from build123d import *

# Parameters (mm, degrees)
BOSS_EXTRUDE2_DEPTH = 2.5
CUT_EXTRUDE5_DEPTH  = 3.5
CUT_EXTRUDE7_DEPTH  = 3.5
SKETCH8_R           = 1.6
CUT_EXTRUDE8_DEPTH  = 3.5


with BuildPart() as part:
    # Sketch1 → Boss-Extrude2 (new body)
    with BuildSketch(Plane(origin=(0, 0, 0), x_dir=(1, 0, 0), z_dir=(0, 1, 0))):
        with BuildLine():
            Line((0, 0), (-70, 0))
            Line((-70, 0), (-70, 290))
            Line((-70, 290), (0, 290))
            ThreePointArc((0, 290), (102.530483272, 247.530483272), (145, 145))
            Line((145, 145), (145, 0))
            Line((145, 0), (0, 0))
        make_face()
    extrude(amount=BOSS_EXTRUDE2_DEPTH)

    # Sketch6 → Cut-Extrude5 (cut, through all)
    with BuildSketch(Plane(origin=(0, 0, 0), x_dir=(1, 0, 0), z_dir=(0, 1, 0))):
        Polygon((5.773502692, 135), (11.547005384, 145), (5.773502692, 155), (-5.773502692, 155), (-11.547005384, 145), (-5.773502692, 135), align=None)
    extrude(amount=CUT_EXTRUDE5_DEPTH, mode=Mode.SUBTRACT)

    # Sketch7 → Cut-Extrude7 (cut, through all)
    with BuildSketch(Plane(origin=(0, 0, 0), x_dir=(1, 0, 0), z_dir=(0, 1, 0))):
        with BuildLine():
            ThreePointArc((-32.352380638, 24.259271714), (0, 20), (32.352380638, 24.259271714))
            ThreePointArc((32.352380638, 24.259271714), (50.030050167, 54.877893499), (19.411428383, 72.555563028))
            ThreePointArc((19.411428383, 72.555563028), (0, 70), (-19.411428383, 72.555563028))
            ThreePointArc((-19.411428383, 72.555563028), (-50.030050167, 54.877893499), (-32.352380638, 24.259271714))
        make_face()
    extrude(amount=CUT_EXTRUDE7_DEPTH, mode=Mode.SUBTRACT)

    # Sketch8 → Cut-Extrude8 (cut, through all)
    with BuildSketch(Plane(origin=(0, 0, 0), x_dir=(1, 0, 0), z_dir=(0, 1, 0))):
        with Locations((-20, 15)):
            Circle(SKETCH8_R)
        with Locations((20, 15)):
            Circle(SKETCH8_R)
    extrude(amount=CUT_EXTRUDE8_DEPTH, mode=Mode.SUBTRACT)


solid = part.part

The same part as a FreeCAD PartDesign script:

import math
import FreeCAD as App
import Part
import Sketcher
Q = App.Units.Quantity

doc = App.newDocument("Part")
params = doc.addObject("Spreadsheet::Sheet", "Params")
for row, (alias, value) in enumerate([
    ("sketch1_radius", "145 mm"),
    ("sketch1_width", "215 mm"),
    ("sketch1_height", "290 mm"),
    ("pad1_length", "2.5 mm"),
    ("sketch3_radius", "125 mm"),
    ("sketch3_radius2", "25 mm"),
    ("sketch4_diameter", "3.2 mm"),
], start=1):
    params.set(f"A{row}", alias)
    params.set(f"B{row}", "=" + value)
    params.setAlias(f"B{row}", alias)

body = doc.addObject("PartDesign::Body", "Body")

# Sketch on XZ plane
sketch1 = body.newObject("Sketcher::SketchObject", "Sketch")
sketch1.AttachmentSupport = (doc.getObject("XZ_Plane"), [""])
sketch1.MapMode = "FlatFace"
sketch1.addGeometry([
    Part.LineSegment(App.Vector(-70, -290, 0), App.Vector(-70, 0, 0)),  # 0
    Part.LineSegment(App.Vector(-70, 0, 0), App.Vector(145, 0, 0)),  # 1
    Part.LineSegment(App.Vector(145, 0, 0), App.Vector(145, -145, 0)),  # 2
    Part.ArcOfCircle(Part.Circle(App.Vector(0, -145, 0), App.Vector(0, 0, 1), 145), math.radians(-90), math.radians(0)),  # 3
    Part.LineSegment(App.Vector(0, -290, 0), App.Vector(-70, -290, 0)),  # 4
], False)
sketch1.addConstraint([
    Sketcher.Constraint("Coincident", 0, 2, 1, 1),
    Sketcher.Constraint("Coincident", 1, 2, 2, 1),
    Sketcher.Constraint("Tangent", 2, 2, 3, 2),
    Sketcher.Constraint("Tangent", 3, 1, 4, 1),
    Sketcher.Constraint("Coincident", 4, 2, 0, 1),
    Sketcher.Constraint("Vertical", 0),
    Sketcher.Constraint("Horizontal", 1),
    Sketcher.Constraint("Vertical", 2),
    Sketcher.Constraint("Horizontal", 4),
    Sketcher.Constraint("PointOnObject", 3, 3, -2),
    Sketcher.Constraint("PointOnObject", 0, 2, -1),
    Sketcher.Constraint("Radius", 3, Q("145 mm")),
    Sketcher.Constraint("DistanceX", 1, 1, 1, 2, Q("215 mm")),
    Sketcher.Constraint("DistanceY", 0, 1, 0, 2, Q("290 mm")),
])
sketch1.setExpression("Constraints[11]", "Params.sketch1_radius")
sketch1.setExpression("Constraints[12]", "Params.sketch1_width")
sketch1.setExpression("Constraints[13]", "Params.sketch1_height")
pad1 = body.newObject("PartDesign::Pad", "Pad")
pad1.Profile = sketch1
pad1.setExpression("Length", "Params.pad1_length")
pad1.Reversed = True

# Sketch on XZ plane
sketch2 = body.newObject("Sketcher::SketchObject", "Sketch001")
sketch2.AttachmentSupport = (doc.getObject("XZ_Plane"), [""])
sketch2.MapMode = "FlatFace"
sketch2.addGeometry([
    Part.LineSegment(App.Vector(5.773503, -135, 0), App.Vector(11.547005, -145, 0)),  # 0
    Part.LineSegment(App.Vector(11.547005, -145, 0), App.Vector(5.773503, -155, 0)),  # 1
    Part.LineSegment(App.Vector(5.773503, -155, 0), App.Vector(-5.773503, -155, 0)),  # 2
    Part.LineSegment(App.Vector(-5.773503, -155, 0), App.Vector(-11.547005, -145, 0)),  # 3
    Part.LineSegment(App.Vector(-11.547005, -145, 0), App.Vector(-5.773503, -135, 0)),  # 4
    Part.LineSegment(App.Vector(-5.773503, -135, 0), App.Vector(5.773503, -135, 0)),  # 5
], False)
sketch2.addConstraint([
    Sketcher.Constraint("Coincident", 0, 2, 1, 1),
    Sketcher.Constraint("Coincident", 1, 2, 2, 1),
    Sketcher.Constraint("Coincident", 2, 2, 3, 1),
    Sketcher.Constraint("Coincident", 3, 2, 4, 1),
    Sketcher.Constraint("Coincident", 4, 2, 5, 1),
    Sketcher.Constraint("Coincident", 5, 2, 0, 1),
    Sketcher.Constraint("Horizontal", 2),
    Sketcher.Constraint("Horizontal", 5),
    Sketcher.Constraint("Symmetric", 0, 2, 3, 2, -2),
    Sketcher.Constraint("Parallel", 0, 3),
    Sketcher.Constraint("Parallel", 1, 4),
    Sketcher.Constraint("Vertical", 2, 2, 4, 2),
    Sketcher.Constraint("Vertical", 1, 2, 5, 2),
    Sketcher.Constraint("Angle", 0, Q("-60 deg")),
    Sketcher.Constraint("DistanceY", 0, 2, -1, 1, Q("145 mm")),
    Sketcher.Constraint("DistanceY", 1, 2, -1, 1, Q("155 mm")),
    Sketcher.Constraint("DistanceX", 2, 2, 2, 1, Q("11.547005 mm")),
])
pocket1 = body.newObject("PartDesign::Pocket", "Pocket")
pocket1.Profile = sketch2
pocket1.Type = "ThroughAll"

# Sketch on XZ plane
sketch3 = body.newObject("Sketcher::SketchObject", "Sketch002")
sketch3.AttachmentSupport = (doc.getObject("XZ_Plane"), [""])
sketch3.MapMode = "FlatFace"
sketch3.addGeometry([
    Part.ArcOfCircle(Part.Circle(App.Vector(0, -145, 0), App.Vector(0, 0, 1), 125), math.radians(75), math.radians(105)),
    Part.ArcOfCircle(Part.Circle(App.Vector(25.881905, -48.407417, 0), App.Vector(0, 0, 1), 25), math.radians(-105), math.radians(75)),
    Part.ArcOfCircle(Part.Circle(App.Vector(0, -145, 0), App.Vector(0, 0, 1), 75), math.radians(75), math.radians(105)),
    Part.ArcOfCircle(Part.Circle(App.Vector(-25.881905, -48.407417, 0), App.Vector(0, 0, 1), 25), math.radians(105), math.radians(285)),
], False)
sketch3.addConstraint([
    Sketcher.Constraint("Tangent", 0, 1, 1, 2),
    Sketcher.Constraint("Tangent", 1, 1, 2, 1),
    Sketcher.Constraint("Tangent", 2, 2, 3, 2),
    Sketcher.Constraint("Tangent", 3, 1, 0, 2),
    Sketcher.Constraint("Coincident", 2, 3, 0, 3),
    Sketcher.Constraint("Symmetric", 1, 3, 3, 3, -2),
    Sketcher.Constraint("Radius", 0, Q("125 mm")),
    Sketcher.Constraint("Radius", 1, Q("25 mm")),
    Sketcher.Constraint("DistanceY", 0, 3, -1, 1, Q("145 mm")),
    Sketcher.Constraint("DistanceX", -1, 1, 0, 1, Q("32.352381 mm")),
])
sketch3.setExpression("Constraints[6]", "Params.sketch3_radius")
sketch3.setExpression("Constraints[7]", "Params.sketch3_radius2")
pocket2 = body.newObject("PartDesign::Pocket", "Pocket001")
pocket2.Profile = sketch3
pocket2.Type = "ThroughAll"

# Sketch on XZ plane
sketch4 = body.newObject("Sketcher::SketchObject", "Sketch003")
sketch4.AttachmentSupport = (doc.getObject("XZ_Plane"), [""])
sketch4.MapMode = "FlatFace"
sketch4.addGeometry([
    Part.Circle(App.Vector(-20, -15, 0), App.Vector(0, 0, 1), 1.6),
    Part.Circle(App.Vector(20, -15, 0), App.Vector(0, 0, 1), 1.6),
], False)
sketch4.addConstraint([
    Sketcher.Constraint("Equal", 0, 1),
    Sketcher.Constraint("Symmetric", 0, 3, 1, 3, -2),
    Sketcher.Constraint("Diameter", 0, Q("3.2 mm")),
    Sketcher.Constraint("DistanceX", 0, 3, -1, 1, Q("20 mm")),
    Sketcher.Constraint("DistanceY", 0, 3, -1, 1, Q("15 mm")),
])
sketch4.setExpression("Constraints[2]", "Params.sketch4_diameter")
pocket3 = body.newObject("PartDesign::Pocket", "Pocket002")
pocket3.Profile = sketch4
pocket3.Type = "ThroughAll"

doc.recompute()
